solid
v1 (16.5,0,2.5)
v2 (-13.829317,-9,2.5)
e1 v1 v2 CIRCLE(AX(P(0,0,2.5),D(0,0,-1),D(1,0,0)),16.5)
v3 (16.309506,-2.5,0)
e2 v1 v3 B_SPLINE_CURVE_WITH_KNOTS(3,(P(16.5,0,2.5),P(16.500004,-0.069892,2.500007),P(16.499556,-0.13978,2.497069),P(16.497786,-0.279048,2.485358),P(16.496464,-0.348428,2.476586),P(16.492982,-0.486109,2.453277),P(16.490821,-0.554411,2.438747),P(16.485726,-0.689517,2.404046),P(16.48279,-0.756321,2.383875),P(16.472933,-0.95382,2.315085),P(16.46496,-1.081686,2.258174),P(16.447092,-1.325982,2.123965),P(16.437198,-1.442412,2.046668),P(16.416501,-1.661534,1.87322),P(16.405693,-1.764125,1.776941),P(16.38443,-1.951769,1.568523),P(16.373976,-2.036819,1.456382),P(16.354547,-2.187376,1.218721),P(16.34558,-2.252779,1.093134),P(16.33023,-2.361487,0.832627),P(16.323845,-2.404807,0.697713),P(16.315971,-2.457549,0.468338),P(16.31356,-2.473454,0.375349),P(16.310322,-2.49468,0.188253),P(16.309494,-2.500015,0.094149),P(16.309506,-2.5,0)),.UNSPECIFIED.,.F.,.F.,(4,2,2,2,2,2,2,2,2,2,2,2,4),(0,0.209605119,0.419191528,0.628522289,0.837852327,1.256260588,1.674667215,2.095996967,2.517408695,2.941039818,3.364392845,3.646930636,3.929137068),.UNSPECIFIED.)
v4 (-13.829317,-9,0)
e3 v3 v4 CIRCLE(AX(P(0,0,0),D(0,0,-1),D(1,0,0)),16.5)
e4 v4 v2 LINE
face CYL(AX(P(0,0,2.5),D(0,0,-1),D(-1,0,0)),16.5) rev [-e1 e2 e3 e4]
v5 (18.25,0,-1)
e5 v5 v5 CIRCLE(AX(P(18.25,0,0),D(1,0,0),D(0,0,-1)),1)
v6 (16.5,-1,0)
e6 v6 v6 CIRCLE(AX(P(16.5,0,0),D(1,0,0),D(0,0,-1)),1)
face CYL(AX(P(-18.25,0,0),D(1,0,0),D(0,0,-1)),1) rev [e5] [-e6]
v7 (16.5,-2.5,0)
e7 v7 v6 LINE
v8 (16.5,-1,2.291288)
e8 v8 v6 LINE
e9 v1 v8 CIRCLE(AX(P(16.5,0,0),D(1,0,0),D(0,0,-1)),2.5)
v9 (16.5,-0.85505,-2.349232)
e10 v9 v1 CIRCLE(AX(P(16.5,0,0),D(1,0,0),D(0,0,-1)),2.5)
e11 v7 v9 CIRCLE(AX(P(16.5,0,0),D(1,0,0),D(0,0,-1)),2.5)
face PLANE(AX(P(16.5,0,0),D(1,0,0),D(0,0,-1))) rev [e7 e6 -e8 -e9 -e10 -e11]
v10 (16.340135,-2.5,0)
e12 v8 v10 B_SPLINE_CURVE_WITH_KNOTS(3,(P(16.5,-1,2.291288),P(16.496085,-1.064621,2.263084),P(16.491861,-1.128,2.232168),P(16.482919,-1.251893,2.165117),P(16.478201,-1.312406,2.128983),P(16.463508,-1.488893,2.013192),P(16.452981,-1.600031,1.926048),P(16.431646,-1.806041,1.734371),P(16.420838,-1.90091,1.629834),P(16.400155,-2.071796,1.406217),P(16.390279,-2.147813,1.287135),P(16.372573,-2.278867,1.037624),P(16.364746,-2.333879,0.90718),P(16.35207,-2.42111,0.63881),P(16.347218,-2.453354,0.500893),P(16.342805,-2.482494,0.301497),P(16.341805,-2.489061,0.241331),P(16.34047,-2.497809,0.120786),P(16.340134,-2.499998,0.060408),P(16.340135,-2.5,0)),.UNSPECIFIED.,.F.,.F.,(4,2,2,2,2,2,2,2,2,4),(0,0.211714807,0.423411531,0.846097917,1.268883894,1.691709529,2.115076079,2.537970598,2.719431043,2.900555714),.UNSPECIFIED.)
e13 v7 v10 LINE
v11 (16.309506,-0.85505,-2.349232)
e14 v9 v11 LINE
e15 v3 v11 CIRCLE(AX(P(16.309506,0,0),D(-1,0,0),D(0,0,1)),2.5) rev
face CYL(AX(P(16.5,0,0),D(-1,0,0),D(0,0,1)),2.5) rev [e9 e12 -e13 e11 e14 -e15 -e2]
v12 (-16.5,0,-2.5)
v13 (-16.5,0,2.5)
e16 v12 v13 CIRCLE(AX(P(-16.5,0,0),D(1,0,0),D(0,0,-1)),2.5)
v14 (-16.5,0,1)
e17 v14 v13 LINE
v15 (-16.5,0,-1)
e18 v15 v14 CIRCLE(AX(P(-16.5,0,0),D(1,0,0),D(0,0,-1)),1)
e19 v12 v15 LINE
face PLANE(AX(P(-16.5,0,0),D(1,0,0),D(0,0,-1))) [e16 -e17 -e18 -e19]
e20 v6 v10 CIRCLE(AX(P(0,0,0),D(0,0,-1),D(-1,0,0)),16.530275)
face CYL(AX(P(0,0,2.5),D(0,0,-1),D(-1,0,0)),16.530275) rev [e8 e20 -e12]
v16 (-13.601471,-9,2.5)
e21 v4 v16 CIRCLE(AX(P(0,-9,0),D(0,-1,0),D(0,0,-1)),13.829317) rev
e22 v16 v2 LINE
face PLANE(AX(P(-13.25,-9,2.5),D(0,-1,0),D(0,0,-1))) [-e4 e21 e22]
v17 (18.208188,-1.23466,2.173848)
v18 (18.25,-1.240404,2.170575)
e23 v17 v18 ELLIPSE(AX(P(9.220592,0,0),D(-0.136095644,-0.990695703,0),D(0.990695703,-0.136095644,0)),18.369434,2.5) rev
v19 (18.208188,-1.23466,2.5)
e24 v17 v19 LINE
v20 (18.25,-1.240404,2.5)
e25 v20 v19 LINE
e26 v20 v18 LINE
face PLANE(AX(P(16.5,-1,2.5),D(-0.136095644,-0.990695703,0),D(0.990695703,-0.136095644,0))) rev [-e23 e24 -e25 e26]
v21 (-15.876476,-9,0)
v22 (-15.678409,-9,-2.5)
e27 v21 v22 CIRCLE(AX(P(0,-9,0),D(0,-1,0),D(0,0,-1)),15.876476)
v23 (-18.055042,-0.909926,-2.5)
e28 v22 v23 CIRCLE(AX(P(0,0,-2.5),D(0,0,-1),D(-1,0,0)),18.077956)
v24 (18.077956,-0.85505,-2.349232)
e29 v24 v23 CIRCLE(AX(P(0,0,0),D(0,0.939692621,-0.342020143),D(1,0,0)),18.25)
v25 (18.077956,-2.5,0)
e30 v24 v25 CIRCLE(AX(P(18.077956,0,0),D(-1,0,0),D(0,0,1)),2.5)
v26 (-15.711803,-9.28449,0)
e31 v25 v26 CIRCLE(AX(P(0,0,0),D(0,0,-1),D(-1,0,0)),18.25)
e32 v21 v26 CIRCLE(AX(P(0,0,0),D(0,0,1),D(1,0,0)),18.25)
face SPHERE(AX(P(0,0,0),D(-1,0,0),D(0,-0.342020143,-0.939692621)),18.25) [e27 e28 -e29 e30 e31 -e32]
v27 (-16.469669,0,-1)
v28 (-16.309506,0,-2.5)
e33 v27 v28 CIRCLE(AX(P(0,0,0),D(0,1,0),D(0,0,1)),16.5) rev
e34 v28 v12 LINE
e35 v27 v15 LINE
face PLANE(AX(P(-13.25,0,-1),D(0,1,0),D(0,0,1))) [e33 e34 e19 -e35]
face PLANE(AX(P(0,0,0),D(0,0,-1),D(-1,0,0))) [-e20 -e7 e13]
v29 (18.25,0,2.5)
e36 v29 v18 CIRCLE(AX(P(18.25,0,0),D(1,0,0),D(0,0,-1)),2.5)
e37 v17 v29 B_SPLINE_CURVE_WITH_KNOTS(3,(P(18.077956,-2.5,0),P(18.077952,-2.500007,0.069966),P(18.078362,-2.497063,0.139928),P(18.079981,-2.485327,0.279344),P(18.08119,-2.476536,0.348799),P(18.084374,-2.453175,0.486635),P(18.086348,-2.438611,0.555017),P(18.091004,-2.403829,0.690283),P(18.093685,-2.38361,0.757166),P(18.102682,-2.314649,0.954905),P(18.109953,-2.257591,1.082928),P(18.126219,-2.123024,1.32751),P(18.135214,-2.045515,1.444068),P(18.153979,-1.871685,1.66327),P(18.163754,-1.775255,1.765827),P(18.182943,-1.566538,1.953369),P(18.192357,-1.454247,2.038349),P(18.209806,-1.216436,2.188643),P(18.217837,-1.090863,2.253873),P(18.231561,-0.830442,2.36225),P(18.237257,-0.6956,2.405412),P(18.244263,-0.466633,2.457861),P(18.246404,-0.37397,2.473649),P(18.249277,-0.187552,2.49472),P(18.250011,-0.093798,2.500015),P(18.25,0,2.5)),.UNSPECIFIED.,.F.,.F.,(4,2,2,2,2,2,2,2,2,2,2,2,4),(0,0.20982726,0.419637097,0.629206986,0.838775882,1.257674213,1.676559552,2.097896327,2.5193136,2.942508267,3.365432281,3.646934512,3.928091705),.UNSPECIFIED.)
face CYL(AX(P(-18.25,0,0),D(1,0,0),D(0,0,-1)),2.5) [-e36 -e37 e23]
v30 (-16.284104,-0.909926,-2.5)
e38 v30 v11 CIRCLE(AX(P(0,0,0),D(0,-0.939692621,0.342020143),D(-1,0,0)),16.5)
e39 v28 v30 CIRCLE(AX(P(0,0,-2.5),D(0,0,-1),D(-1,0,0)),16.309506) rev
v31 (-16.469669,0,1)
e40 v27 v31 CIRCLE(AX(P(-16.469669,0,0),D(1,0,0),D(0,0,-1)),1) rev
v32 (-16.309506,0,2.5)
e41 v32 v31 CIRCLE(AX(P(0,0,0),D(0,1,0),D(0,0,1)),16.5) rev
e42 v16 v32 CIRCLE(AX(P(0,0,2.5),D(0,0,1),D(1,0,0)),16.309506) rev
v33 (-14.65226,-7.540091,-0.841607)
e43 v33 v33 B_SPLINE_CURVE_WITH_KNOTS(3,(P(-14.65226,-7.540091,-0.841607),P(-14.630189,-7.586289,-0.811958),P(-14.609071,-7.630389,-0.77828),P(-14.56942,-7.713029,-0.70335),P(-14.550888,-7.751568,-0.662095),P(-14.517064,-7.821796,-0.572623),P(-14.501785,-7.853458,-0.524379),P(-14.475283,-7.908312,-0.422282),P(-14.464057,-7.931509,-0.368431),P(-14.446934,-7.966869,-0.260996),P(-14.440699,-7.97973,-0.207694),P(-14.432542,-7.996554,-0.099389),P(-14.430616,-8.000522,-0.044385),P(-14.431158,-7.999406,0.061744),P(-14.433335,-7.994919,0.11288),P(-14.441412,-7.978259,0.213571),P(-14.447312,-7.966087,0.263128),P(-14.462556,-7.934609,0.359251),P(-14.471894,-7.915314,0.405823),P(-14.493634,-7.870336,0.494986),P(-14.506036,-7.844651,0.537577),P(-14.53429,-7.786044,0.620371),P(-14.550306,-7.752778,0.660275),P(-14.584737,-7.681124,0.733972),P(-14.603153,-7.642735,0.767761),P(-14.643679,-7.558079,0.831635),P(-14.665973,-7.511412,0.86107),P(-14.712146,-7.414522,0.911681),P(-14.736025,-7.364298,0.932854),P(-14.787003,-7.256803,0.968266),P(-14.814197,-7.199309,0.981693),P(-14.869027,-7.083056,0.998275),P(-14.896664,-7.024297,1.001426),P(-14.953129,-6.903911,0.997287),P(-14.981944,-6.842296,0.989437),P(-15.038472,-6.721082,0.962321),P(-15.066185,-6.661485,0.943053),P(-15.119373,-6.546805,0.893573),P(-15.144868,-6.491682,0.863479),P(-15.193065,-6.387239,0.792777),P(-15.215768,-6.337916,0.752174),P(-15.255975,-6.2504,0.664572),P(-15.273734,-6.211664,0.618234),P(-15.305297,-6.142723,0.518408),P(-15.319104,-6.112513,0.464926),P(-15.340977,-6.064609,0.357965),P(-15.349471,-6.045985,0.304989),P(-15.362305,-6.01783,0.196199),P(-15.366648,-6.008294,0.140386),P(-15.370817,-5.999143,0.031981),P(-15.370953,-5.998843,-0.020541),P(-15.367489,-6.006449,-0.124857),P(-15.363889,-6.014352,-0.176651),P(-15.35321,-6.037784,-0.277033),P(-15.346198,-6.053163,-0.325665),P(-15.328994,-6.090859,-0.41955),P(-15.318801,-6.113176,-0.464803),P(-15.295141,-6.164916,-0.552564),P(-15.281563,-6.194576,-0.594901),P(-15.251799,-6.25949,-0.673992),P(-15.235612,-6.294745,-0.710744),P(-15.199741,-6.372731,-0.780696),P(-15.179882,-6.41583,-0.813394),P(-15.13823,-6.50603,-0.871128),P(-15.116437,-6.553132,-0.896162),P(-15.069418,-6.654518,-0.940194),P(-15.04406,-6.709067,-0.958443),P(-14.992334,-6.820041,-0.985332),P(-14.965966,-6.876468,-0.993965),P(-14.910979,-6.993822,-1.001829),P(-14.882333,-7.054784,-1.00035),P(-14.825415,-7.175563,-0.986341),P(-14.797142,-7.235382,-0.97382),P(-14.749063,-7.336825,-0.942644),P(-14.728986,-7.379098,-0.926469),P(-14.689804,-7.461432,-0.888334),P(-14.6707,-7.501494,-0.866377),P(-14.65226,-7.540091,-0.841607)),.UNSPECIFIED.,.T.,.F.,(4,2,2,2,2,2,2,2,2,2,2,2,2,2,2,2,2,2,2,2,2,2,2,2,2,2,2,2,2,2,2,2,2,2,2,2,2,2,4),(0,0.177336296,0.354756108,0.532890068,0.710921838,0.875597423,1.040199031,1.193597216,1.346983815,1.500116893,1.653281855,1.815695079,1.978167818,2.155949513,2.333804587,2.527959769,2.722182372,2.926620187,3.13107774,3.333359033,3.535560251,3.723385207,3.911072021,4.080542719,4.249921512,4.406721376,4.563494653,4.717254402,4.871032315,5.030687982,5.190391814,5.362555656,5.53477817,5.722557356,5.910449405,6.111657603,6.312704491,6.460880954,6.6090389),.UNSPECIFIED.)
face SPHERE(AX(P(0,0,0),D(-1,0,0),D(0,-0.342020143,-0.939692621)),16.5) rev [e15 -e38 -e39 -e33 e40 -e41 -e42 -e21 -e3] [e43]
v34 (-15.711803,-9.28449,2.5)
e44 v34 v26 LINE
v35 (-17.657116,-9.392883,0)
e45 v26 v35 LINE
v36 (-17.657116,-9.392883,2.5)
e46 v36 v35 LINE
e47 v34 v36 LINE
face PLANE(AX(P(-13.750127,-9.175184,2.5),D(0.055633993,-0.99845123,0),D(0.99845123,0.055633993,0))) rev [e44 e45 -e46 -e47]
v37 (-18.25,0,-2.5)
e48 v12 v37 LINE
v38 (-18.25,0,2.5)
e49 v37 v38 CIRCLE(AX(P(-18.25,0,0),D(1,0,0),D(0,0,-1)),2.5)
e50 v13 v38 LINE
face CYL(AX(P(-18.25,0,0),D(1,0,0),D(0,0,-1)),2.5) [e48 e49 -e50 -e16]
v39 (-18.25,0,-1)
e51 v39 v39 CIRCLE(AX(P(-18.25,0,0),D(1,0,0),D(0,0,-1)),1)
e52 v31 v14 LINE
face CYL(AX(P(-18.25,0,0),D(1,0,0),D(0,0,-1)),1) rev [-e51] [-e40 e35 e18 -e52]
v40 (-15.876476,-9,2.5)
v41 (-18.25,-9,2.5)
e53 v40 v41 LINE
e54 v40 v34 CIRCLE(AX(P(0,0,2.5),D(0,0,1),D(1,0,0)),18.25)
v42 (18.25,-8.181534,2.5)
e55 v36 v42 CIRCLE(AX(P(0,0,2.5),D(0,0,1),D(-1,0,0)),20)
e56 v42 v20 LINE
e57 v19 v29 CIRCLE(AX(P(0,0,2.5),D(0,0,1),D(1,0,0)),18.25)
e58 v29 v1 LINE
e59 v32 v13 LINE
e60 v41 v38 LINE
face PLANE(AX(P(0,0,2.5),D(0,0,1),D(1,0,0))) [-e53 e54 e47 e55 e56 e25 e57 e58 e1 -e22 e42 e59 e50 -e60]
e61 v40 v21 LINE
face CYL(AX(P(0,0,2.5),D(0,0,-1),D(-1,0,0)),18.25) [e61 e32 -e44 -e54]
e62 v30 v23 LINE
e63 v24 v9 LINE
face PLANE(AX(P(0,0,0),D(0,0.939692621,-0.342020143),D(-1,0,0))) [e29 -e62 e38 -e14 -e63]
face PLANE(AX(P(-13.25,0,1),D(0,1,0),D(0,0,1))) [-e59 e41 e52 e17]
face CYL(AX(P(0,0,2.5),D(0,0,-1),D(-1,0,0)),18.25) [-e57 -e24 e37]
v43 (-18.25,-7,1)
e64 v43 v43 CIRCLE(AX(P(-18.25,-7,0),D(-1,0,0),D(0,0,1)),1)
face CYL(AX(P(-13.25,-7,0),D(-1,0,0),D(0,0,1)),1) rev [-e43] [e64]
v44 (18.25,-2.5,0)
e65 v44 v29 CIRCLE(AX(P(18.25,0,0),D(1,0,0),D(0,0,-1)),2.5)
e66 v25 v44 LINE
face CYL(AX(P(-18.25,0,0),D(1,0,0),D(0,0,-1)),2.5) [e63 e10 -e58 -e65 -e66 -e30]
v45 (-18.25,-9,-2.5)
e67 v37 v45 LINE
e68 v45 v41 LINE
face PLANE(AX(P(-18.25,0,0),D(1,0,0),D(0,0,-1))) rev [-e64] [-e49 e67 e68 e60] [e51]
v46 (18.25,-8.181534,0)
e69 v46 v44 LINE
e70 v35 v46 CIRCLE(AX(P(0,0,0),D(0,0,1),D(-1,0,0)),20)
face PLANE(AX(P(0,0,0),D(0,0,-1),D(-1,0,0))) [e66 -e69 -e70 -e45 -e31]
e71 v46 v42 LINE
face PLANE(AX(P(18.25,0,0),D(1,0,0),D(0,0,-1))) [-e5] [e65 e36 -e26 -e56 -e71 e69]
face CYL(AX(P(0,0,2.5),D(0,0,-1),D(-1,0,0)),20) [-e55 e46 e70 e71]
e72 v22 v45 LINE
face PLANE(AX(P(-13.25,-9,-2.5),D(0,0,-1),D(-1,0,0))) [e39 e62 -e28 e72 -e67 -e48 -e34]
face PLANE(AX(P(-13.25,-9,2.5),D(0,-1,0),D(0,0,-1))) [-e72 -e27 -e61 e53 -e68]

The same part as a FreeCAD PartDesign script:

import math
import FreeCAD as App
import Part
import Sketcher

V = App.Vector
Q = App.Units.Quantity


def add_polygon(sketch, points):
    """Adds a closed chain of lines whose ends are joined by coincident constraints."""
    first, n = sketch.GeometryCount, len(points)
    for a, b in zip(points, points[1:] + points[:1]):
        sketch.addGeometry(Part.LineSegment(App.Vector(*a, 0), App.Vector(*b, 0)), False)
    for i in range(n):
        sketch.addConstraint(Sketcher.Constraint("Coincident", first + i, 2, first + (i + 1) % n, 1))

doc = App.newDocument("Part")
body = doc.addObject("PartDesign::Body", "Body")

sketch1 = body.newObject("Sketcher::SketchObject", "Sketch")
sketch1.AttachmentSupport = (doc.getObject("XY_Plane"), [""])
sketch1.MapMode = "FlatFace"
sketch1.addGeometry([
    Part.LineSegment(V(-16.5, 0, 0), V(-18.25, 0, 0)),
    Part.ArcOfCircle(Part.Circle(V(0, 0, 0), V(0, 0, 1), 18.25), math.radians(180), math.radians(360)),
    Part.LineSegment(V(18.25, 0, 0), V(16.5, 0, 0)),
    Part.ArcOfCircle(Part.Circle(V(0, 0, 0), V(0, 0, 1), 16.5), math.radians(180), math.radians(360)),
], False)
sketch1.addConstraint([
    Sketcher.Constraint("Coincident", 0, 2, 1, 1),
    Sketcher.Constraint("Coincident", 1, 2, 2, 1),
    Sketcher.Constraint("Coincident", 2, 2, 3, 2),
    Sketcher.Constraint("Coincident", 3, 1, 0, 1),
    Sketcher.Constraint("Horizontal", 0),
    Sketcher.Constraint("Horizontal", 2),
    Sketcher.Constraint("Coincident", 1, 3, -1, 1),
    Sketcher.Constraint("Coincident", 3, 3, -1, 1),
    Sketcher.Constraint("PointOnObject", 0, 2, -1),
    Sketcher.Constraint("PointOnObject", 1, 2, -1),
    Sketcher.Constraint("Radius", 3, Q("16.5 mm")),
    Sketcher.Constraint("Radius", 1, Q("18.25 mm")),
])
pad1 = body.newObject("PartDesign::Pad", "Pad")
pad1.Profile = sketch1
pad1.Length = 2.5

sketch2 = body.newObject("Sketcher::SketchObject", "Sketch001")
sketch2.AttachmentSupport = (doc.getObject("XY_Plane"), [""])
sketch2.MapMode = "FlatFace"
sketch2.addGeometry([
    Part.ArcOfCircle(Part.Circle(V(0, 0, 0), V(0, 0, 1), 16.5), math.radians(180), math.radians(360)),
    Part.LineSegment(V(16.5, 0, 0), V(18.25, 0, 0)),
    Part.ArcOfCircle(Part.Circle(V(0, 0, 0), V(0, 0, 1), 18.25), math.radians(180), math.radians(360)),
    Part.LineSegment(V(-18.25, 0, 0), V(-16.5, 0, 0)),
], False)
sketch2.addConstraint([
    Sketcher.Constraint("Coincident", 0, 2, 1, 1),
    Sketcher.Constraint("Coincident", 1, 2, 2, 2),
    Sketcher.Constraint("Coincident", 2, 1, 3, 1),
    Sketcher.Constraint("Coincident", 3, 2, 0, 1),
    Sketcher.Constraint("Horizontal", 1),
    Sketcher.Constraint("Horizontal", 3),
    Sketcher.Constraint("Coincident", 0, 3, -1, 1),
    Sketcher.Constraint("Coincident", 2, 3, -1, 1),
    Sketcher.Constraint("PointOnObject", 0, 2, -1),
    Sketcher.Constraint("PointOnObject", 2, 1, -1),
    Sketcher.Constraint("Radius", 0, Q("16.5 mm")),
    Sketcher.Constraint("Radius", 2, Q("18.25 mm")),
])
revolution = body.newObject("PartDesign::Revolution", "Revolution")
revolution.Profile = sketch2
revolution.ReferenceAxis = (sketch2, ["H_Axis"])
revolution.Angle = 70

sketch3 = body.newObject("Sketcher::SketchObject", "Sketch002")
sketch3.AttachmentSupport = (doc.getObject("YZ_Plane"), [""])
sketch3.MapMode = "FlatFace"
sketch3.addGeometry([
    Part.Circle(V(0, 0, 0), V(0, 0, 1), 2.5),
    Part.Circle(V(0, 0, 0), V(0, 0, 1), 1),
], False)
sketch3.addConstraint([
    Sketcher.Constraint("Coincident", 0, 3, -1, 1),
    Sketcher.Constraint("Coincident", 1, 3, -1, 1),
    Sketcher.Constraint("Diameter", 0, Q("5 mm")),
    Sketcher.Constraint("Diameter", 1, Q("2 mm")),
])
pad2 = body.newObject("PartDesign::Pad", "Pad001")
pad2.Profile = sketch3
pad2.Type = "TwoLengths"
pad2.Length = 18.25
pad2.Length2 = 18.25

sketch4 = body.newObject("Sketcher::SketchObject", "Sketch003")
sketch4.AttachmentSupport = (doc.getObject("YZ_Plane"), [""])
sketch4.MapMode = "FlatFace"
sketch4.addGeometry([
    Part.Circle(V(0, 0, 0), V(0, 0, 1), 2.5),
    Part.Circle(V(0, 0, 0), V(0, 0, 1), 1),
], False)
sketch4.addConstraint([
    Sketcher.Constraint("Coincident", 0, 3, -1, 1),
    Sketcher.Constraint("Coincident", 1, 3, -1, 1),
    Sketcher.Constraint("Diameter", 0, Q("5 mm")),
    Sketcher.Constraint("Diameter", 1, Q("2 mm")),
])
pocket1 = body.newObject("PartDesign::Pocket", "Pocket")
pocket1.Profile = sketch4
pocket1.Type = "TwoLengths"
pocket1.Length = 16.5
pocket1.Length2 = 16.5
pocket1.Reversed = True

sketch5 = body.newObject("Sketcher::SketchObject", "Sketch004")
sketch5.AttachmentSupport = (doc.getObject("YZ_Plane"), [""])
sketch5.MapMode = "FlatFace"
sketch5.addGeometry(Part.Circle(V(0, 0, 0), V(0, 0, 1), 1), False)
sketch5.addConstraint([
    Sketcher.Constraint("Coincident", 0, 3, -1, 1),
    Sketcher.Constraint("Diameter", 0, Q("2 mm")),
])
pocket2 = body.newObject("PartDesign::Pocket", "Pocket001")
pocket2.Profile = sketch5
pocket2.Type = "ThroughAll"
pocket2.Midplane = True

sketch6 = body.newObject("Sketcher::SketchObject", "Sketch005")
sketch6.AttachmentSupport = (doc.getObject("YZ_Plane"), [""])
sketch6.MapMode = "FlatFace"
sketch6.AttachmentOffset = App.Placement(V(0, 0, -18.25), App.Rotation())
sketch6.addGeometry([
    Part.LineSegment(V(0, 2.5, 0), V(0, 1, 0)),
    Part.ArcOfCircle(Part.Circle(V(0, 0, 0), V(0, 0, 1), 1), math.radians(90), math.radians(270)),
    Part.LineSegment(V(0, -1, 0), V(0, -2.5, 0)),
    Part.LineSegment(V(0, -2.5, 0), V(-9, -2.5, 0)),
    Part.LineSegment(V(-9, -2.5, 0), V(-9, 2.5, 0)),
    Part.LineSegment(V(-9, 2.5, 0), V(0, 2.5, 0)),
    Part.Circle(V(-7, 0, 0), V(0, 0, 1), 1),
], False)
sketch6.addConstraint([
    Sketcher.Constraint("Coincident", 0, 2, 1, 1),
    Sketcher.Constraint("Coincident", 1, 2, 2, 1),
    Sketcher.Constraint("Coincident", 2, 2, 3, 1),
    Sketcher.Constraint("Coincident", 3, 2, 4, 1),
    Sketcher.Constraint("Coincident", 4, 2, 5, 1),
    Sketcher.Constraint("Coincident", 5, 2, 0, 1),
    Sketcher.Constraint("Vertical", 0),
    Sketcher.Constraint("Vertical", 2),
    Sketcher.Constraint("Horizontal", 3),
    Sketcher.Constraint("Vertical", 4),
    Sketcher.Constraint("Horizontal", 5),
    Sketcher.Constraint("Coincident", 1, 3, -1, 1),
    Sketcher.Constraint("Equal", 1, 6),
    Sketcher.Constraint("Symmetric", 2, 2, 5, 2, -1, 1),
    Sketcher.Constraint("PointOnObject", 6, 3, -1),
    Sketcher.Constraint("PointOnObject", 0, 2, -2),
    Sketcher.Constraint("Diameter", 6, Q("2 mm")),
    Sketcher.Constraint("DistanceX", 3, 2, 3, 1, Q("9 mm")),
    Sketcher.Constraint("DistanceY", 4, 1, 4, 2, Q("5 mm")),
    Sketcher.Constraint("DistanceX", 6, 3, -1, 1, Q("7 mm")),
])
pad3 = body.newObject("PartDesign::Pad", "Pad002")
pad3.Profile = sketch6
pad3.Length = 5

sketch7 = body.newObject("Sketcher::SketchObject", "Sketch006")
sketch7.AttachmentSupport = (doc.getObject("YZ_Plane"), [""])
sketch7.MapMode = "FlatFace"
sketch7.AttachmentOffset = App.Placement(V(0, 0, -18.25), App.Rotation())
sketch7.addGeometry(Part.Circle(V(-7, 0, 0), V(0, 0, 1), 1), False)
sketch7.addConstraint([
    Sketcher.Constraint("PointOnObject", 0, 3, -1),
    Sketcher.Constraint("Diameter", 0, Q("2 mm")),
    Sketcher.Constraint("DistanceX", 0, 3, -1, 1, Q("7 mm")),
])
pocket3 = body.newObject("PartDesign::Pocket", "Pocket002")
pocket3.Profile = sketch7
pocket3.Length = 5
pocket3.Reversed = True

sketch8 = body.newObject("Sketcher::SketchObject", "Sketch007")
sketch8.AttachmentSupport = (doc.getObject("XY_Plane"), [""])
sketch8.MapMode = "FlatFace"
sketch8.addGeometry([
    Part.LineSegment(V(16.5, 0, 0), V(-16.5, 0, 0)),
    Part.ArcOfCircle(Part.Circle(V(0, 0, 0), V(0, 0, 1), 16.5), math.radians(180), math.radians(360)),
], False)
sketch8.addConstraint([
    Sketcher.Constraint("Coincident", 0, 1, 1, 2),
    Sketcher.Constraint("Coincident", 1, 1, 0, 2),
    Sketcher.Constraint("Horizontal", 0),
    Sketcher.Constraint("Coincident", 1, 3, -1, 1),
    Sketcher.Constraint("PointOnObject", 0, 1, -1),
    Sketcher.Constraint("Radius", 1, Q("16.5 mm")),
])
groove = body.newObject("PartDesign::Groove", "Groove")
groove.Profile = sketch8
groove.ReferenceAxis = (sketch8, ["H_Axis"])
groove.Angle = 360

sketch9 = body.newObject("Sketcher::SketchObject", "Sketch008")
sketch9.AttachmentSupport = (doc.getObject("XY_Plane"), [""])
sketch9.MapMode = "FlatFace"
sketch9.addGeometry([
    Part.LineSegment(V(19.945658, -1.473343, 0), V(16.5, -1, 0)),
    Part.ArcOfCircle(Part.Circle(V(0, 0, 0), V(0, 0, 1), 16.530275), math.radians(-146.285611), math.radians(-3.468229)),
    Part.LineSegment(V(-13.750127, -9.175184, 0), V(-17.657116, -9.392883, 0)),
    Part.ArcOfCircle(Part.Circle(V(0, 0, 0), V(0, 0, 1), 20), math.radians(-151.9888), math.radians(-4.224644)),
], False)
sketch9.addConstraint([
    Sketcher.Constraint("Coincident", 0, 2, 1, 2),
    Sketcher.Constraint("Coincident", 1, 1, 2, 1),
    Sketcher.Constraint("Coincident", 2, 2, 3, 1),
    Sketcher.Constraint("Coincident", 3, 2, 0, 1),
    Sketcher.Constraint("Coincident", 1, 3, -1, 1),
    Sketcher.Constraint("Coincident", 3, 3, -1, 1),
    Sketcher.Constraint("Radius", 3, Q("20 mm")),
    Sketcher.Constraint("DistanceY", 0, 2, -1, 1, Q("1 mm")),
    Sketcher.Constraint("DistanceX", -1, 1, 0, 2, Q("16.5 mm")),
    Sketcher.Constraint("DistanceY", 2, 2, 1, 1, Q("0.217699 mm")),
    Sketcher.Constraint("Distance", 0, Q("3.478018 mm")),
    Sketcher.Constraint("Distance", 2, Q("3.91305 mm")),
])
pad4 = body.newObject("PartDesign::Pad", "Pad003")
pad4.Profile = sketch9
pad4.Length = 2.5

sketch10 = body.newObject("Sketcher::SketchObject", "Sketch009")
sketch10.AttachmentSupport = (doc.getObject("XY_Plane"), [""])
sketch10.MapMode = "FlatFace"
add_polygon(sketch10, [(18.25, -1.240404), (19.945658, -1.473343), (22.787362, -5.639501), (18.25, -11.043121)])
sketch10.addConstraint([
    Sketcher.Constraint("Vertical", 3),
    Sketcher.Constraint("DistanceX", -1, 1, 2, 2, Q("18.25 mm")),
    Sketcher.Constraint("DistanceY", 1, 2, -1, 1, Q("5.639501 mm")),
    Sketcher.Constraint("Distance", 1, Q("5.04303 mm")),
    Sketcher.Constraint("DistanceY", 3, 1, 3, 2, Q("9.802717 mm")),
    Sketcher.Constraint("DistanceX", -1, 1, 1, 2, Q("22.787362 mm")),
    Sketcher.Constraint("DistanceY", 2, 2, -1, 1, Q("11.043121 mm")),
    Sketcher.Constraint("DistanceY", 2, 2, 0, 2, Q("9.569778 mm")),
])
pocket4 = body.newObject("PartDesign::Pocket", "Pocket003")
pocket4.Profile = sketch10
pocket4.Length = 2.5
pocket4.Reversed = True

doc.recompute()
